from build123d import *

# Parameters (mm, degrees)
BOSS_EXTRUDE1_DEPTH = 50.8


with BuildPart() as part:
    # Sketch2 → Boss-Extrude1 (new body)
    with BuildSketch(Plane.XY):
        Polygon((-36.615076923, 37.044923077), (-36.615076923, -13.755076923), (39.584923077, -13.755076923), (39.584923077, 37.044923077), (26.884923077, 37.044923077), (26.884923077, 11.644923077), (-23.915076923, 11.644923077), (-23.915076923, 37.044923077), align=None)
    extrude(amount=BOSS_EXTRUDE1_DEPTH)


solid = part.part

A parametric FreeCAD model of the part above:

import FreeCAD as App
import Part
import Sketcher
Q = App.Units.Quantity

doc = App.newDocument("Part")
body = doc.addObject("PartDesign::Body", "Body")

# Sketch on XY plane
sketch1 = doc.addObject("Sketcher::SketchObject", "Sketch")
body.addObject(sketch1)
sketch1.AttachmentSupport = (doc.XY_Plane, [""])
sketch1.MapMode = "FlatFace"
sketch1.addGeometry([
    Part.LineSegment(App.Vector(-37, 37, 0), App.Vector(-37, -14, 0)),  # 0
    Part.LineSegment(App.Vector(-37, -14, 0), App.Vector(40, -14, 0)),  # 1
    Part.LineSegment(App.Vector(40, -14, 0), App.Vector(40, 37, 0)),  # 2
    Part.LineSegment(App.Vector(40, 37, 0), App.Vector(27, 37, 0)),  # 3
    Part.LineSegment(App.Vector(27, 37, 0), App.Vector(27, 12, 0)),  # 4
    Part.LineSegment(App.Vector(27, 12, 0), App.Vector(-24, 12, 0)),  # 5
    Part.LineSegment(App.Vector(-24, 12, 0), App.Vector(-24, 37, 0)),  # 6
    Part.LineSegment(App.Vector(-24, 37, 0), App.Vector(-37, 37, 0)),  # 7
], False)
sketch1.addConstraint([
    Sketcher.Constraint("Coincident", 0, 2, 1, 1),
    Sketcher.Constraint("Coincident", 1, 2, 2, 1),
    Sketcher.Constraint("Coincident", 2, 2, 3, 1),
    Sketcher.Constraint("Coincident", 3, 2, 4, 1),
    Sketcher.Constraint("Coincident", 4, 2, 5, 1),
    Sketcher.Constraint("Coincident", 5, 2, 6, 1),
    Sketcher.Constraint("Coincident", 6, 2, 7, 1),
    Sketcher.Constraint("Coincident", 7, 2, 0, 1),
    Sketcher.Constraint("Vertical", 0),
    Sketcher.Constraint("Horizontal", 1),
    Sketcher.Constraint("Vertical", 2),
    Sketcher.Constraint("Horizontal", 3),
    Sketcher.Constraint("Vertical", 4),
    Sketcher.Constraint("Horizontal", 5),
    Sketcher.Constraint("Vertical", 6),
    Sketcher.Constraint("Horizontal", 7),
    Sketcher.Constraint("Horizontal", 3, 2, 6, 2),
    Sketcher.Constraint("Equal", 3, 7),
    Sketcher.Constraint("Equal", 5, 0),
    Sketcher.Constraint("DistanceX", 1, 1, 1, 2, Q("3 in")),
    Sketcher.Constraint("DistanceX", 5, 2, 5, 1, Q("2 in")),
    Sketcher.Constraint("DistanceY", 4, 2, 4, 1, Q("1 in")),
    Sketcher.Constraint("DistanceX", 0, 2, -1, 1, 36.615077),
    Sketcher.Constraint("DistanceY", 0, 2, -1, 1, 13.755077),
])
pad1 = doc.addObject("PartDesign::Pad", "Pad")
body.addObject(pad1)
pad1.Profile = sketch1
pad1.Length = Q("2 in")

doc.recompute()
